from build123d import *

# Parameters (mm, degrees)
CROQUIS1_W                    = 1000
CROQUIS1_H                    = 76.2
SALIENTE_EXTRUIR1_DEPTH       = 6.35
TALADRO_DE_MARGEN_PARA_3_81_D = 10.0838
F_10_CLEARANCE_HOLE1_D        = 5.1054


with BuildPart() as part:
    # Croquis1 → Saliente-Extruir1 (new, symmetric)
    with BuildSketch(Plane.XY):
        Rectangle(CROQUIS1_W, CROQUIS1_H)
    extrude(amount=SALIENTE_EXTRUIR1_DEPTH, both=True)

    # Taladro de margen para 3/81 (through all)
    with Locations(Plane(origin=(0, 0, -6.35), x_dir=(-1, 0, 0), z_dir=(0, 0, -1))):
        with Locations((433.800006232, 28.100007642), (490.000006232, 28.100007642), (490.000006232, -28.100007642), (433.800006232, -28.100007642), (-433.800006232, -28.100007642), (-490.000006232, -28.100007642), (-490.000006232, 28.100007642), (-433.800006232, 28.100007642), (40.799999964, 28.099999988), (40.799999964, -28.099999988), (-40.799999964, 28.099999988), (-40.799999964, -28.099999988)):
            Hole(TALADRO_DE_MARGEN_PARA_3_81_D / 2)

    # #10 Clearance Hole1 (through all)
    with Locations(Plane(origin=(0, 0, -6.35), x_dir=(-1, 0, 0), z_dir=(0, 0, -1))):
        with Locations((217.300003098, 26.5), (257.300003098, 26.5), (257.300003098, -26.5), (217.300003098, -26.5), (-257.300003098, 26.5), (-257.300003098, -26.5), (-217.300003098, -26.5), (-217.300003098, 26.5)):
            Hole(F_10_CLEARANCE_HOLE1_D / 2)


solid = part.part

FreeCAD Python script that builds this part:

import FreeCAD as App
import Part
import Sketcher
Q = App.Units.Quantity

doc = App.newDocument("Part")
params = doc.addObject("Spreadsheet::Sheet", "Params")
for row, (alias, value) in enumerate([
    ("sketch1_height", "3 in"),
    ("pad1_length", "0.5 in"),
    ("sketch2_diameter", "0.397 in"),
    ("hole_diameter", "0.397 in"),
    ("sketch3_diameter", "0.201 in"),
    ("hole2_diameter", "0.201 in"),
], start=1):
    params.set(f"A{row}", alias)
    params.set(f"B{row}", "=" + value)
    params.setAlias(f"B{row}", alias)

body = doc.addObject("PartDesign::Body", "Body")

# Sketch on XY plane
sketch1 = body.newObject("Sketcher::SketchObject", "Sketch")
sketch1.AttachmentSupport = (doc.getObject("XY_Plane"), [""])
sketch1.MapMode = "FlatFace"
sketch1.addGeometry([
    Part.LineSegment(App.Vector(-500, 38.1, 0), App.Vector(-500, -38.1, 0)),
    Part.LineSegment(App.Vector(-500, -38.1, 0), App.Vector(500, -38.1, 0)),
    Part.LineSegment(App.Vector(500, -38.1, 0), App.Vector(500, 38.1, 0)),
    Part.LineSegment(App.Vector(500, 38.1, 0), App.Vector(-500, 38.1, 0)),
], False)
sketch1.addConstraint([
    Sketcher.Constraint("Coincident", 0, 2, 1, 1),
    Sketcher.Constraint("Coincident", 1, 2, 2, 1),
    Sketcher.Constraint("Coincident", 2, 2, 3, 1),
    Sketcher.Constraint("Coincident", 3, 2, 0, 1),
    Sketcher.Constraint("Vertical", 0),
    Sketcher.Constraint("Horizontal", 1),
    Sketcher.Constraint("Vertical", 2),
    Sketcher.Constraint("Horizontal", 3),
    Sketcher.Constraint("Symmetric", 0, 2, 2, 2, -1, 1),
    Sketcher.Constraint("DistanceY", 0, 2, 0, 1, Q("3 in")),
    Sketcher.Constraint("DistanceX", 1, 1, 1, 2, 1000.0),
])
sketch1.setExpression("Constraints[9]", "Params.sketch1_height")
pad1 = body.newObject("PartDesign::Pad", "Pad")
pad1.Profile = sketch1
pad1.setExpression("Length", "Params.pad1_length")
pad1.Midplane = True

# Sketch on XY plane
sketch2 = body.newObject("Sketcher::SketchObject", "Sketch001")
sketch2.AttachmentSupport = (doc.getObject("XY_Plane"), [""])
sketch2.MapMode = "FlatFace"
sketch2.AttachmentOffset = App.Placement(App.Vector(0, 0, -0.25 * 25.4), App.Rotation())
sketch2.addGeometry([
    Part.Circle(App.Vector(-433.800006, 28.100008, 0), App.Vector(0, 0, 1), 5.0419),  # 0
    Part.Circle(App.Vector(-490.000006, 28.100008, 0), App.Vector(0, 0, 1), 5.0419),  # 1
    Part.Circle(App.Vector(-490.000006, -28.100008, 0), App.Vector(0, 0, 1), 5.0419),  # 2
    Part.Circle(App.Vector(-433.800006, -28.100008, 0), App.Vector(0, 0, 1), 5.0419),  # 3
    Part.Circle(App.Vector(433.800006, -28.100008, 0), App.Vector(0, 0, 1), 5.0419),  # 4
    Part.Circle(App.Vector(490.000006, -28.100008, 0), App.Vector(0, 0, 1), 5.0419),  # 5
    Part.Circle(App.Vector(490.000006, 28.100008, 0), App.Vector(0, 0, 1), 5.0419),  # 6
    Part.Circle(App.Vector(433.800006, 28.100008, 0), App.Vector(0, 0, 1), 5.0419),  # 7
    Part.Circle(App.Vector(-40.8, 28.1, 0), App.Vector(0, 0, 1), 5.0419),  # 8
    Part.Circle(App.Vector(-40.8, -28.1, 0), App.Vector(0, 0, 1), 5.0419),  # 9
    Part.Circle(App.Vector(40.8, 28.1, 0), App.Vector(0, 0, 1), 5.0419),  # 10
    Part.Circle(App.Vector(40.8, -28.1, 0), App.Vector(0, 0, 1), 5.0419),  # 11
], False)
sketch2.addConstraint([
    Sketcher.Constraint("Equal", 0, 1),
    Sketcher.Constraint("Equal", 1, 2),
    Sketcher.Constraint("Equal", 2, 3),
    Sketcher.Constraint("Equal", 3, 4),
    Sketcher.Constraint("Equal", 4, 5),
    Sketcher.Constraint("Equal", 5, 6),
    Sketcher.Constraint("Equal", 6, 7),
    Sketcher.Constraint("Equal", 7, 8),
    Sketcher.Constraint("Equal", 8, 9),
    Sketcher.Constraint("Equal", 9, 10),
    Sketcher.Constraint("Equal", 10, 11),
    Sketcher.Constraint("Symmetric", 0, 3, 4, 3, -1, 1),
    Sketcher.Constraint("Symmetric", 1, 3, 5, 3, -1, 1),
    Sketcher.Constraint("Symmetric", 2, 3, 6, 3, -1, 1),
    Sketcher.Constraint("Symmetric", 3, 3, 7, 3, -1, 1),
    Sketcher.Constraint("Symmetric", 9, 3, 10, 3, -1, 1),
    Sketcher.Constraint("Symmetric", 8, 3, 11, 3, -1, 1),
    Sketcher.Constraint("Symmetric", 3, 3, 4, 3, -2),
    Sketcher.Constraint("Symmetric", 2, 3, 5, 3, -2),
    Sketcher.Constraint("Symmetric", 8, 3, 10, 3, -2),
    Sketcher.Constraint("Horizontal", 0, 3, 1, 3),
    Sketcher.Constraint("Diameter", 0, Q("0.397 in")),
    Sketcher.Constraint("DistanceX", 8, 3, -1, 1, 40.8),
    Sketcher.Constraint("DistanceY", -1, 1, 8, 3, 28.1),
    Sketcher.Constraint("DistanceX", 1, 3, 0, 3, 56.2),
    Sketcher.Constraint("DistanceX", 0, 3, -1, 1, 433.800006),
    Sketcher.Constraint("DistanceY", -1, 1, 0, 3, 28.100008),
])
sketch2.setExpression("Constraints[21]", "Params.sketch2_diameter")
doc.recompute()
hole = body.newObject("PartDesign::Hole", "Hole")
hole.Profile = sketch2
hole.ThreadType = "None"
hole.setExpression("Diameter", "Params.hole_diameter")
hole.DepthType = "ThroughAll"
hole.Reversed = True

# Sketch on XY plane
sketch3 = body.newObject("Sketcher::SketchObject", "Sketch002")
sketch3.AttachmentSupport = (doc.getObject("XY_Plane"), [""])
sketch3.MapMode = "FlatFace"
sketch3.AttachmentOffset = App.Placement(App.Vector(0, 0, -0.25 * 25.4), App.Rotation())
sketch3.addGeometry([
    Part.Circle(App.Vector(-217.300003, 26.5, 0), App.Vector(0, 0, 1), 2.5527),  # 0
    Part.Circle(App.Vector(-257.300003, 26.5, 0), App.Vector(0, 0, 1), 2.5527),  # 1
    Part.Circle(App.Vector(-257.300003, -26.5, 0), App.Vector(0, 0, 1), 2.5527),  # 2
    Part.Circle(App.Vector(-217.300003, -26.5, 0), App.Vector(0, 0, 1), 2.5527),  # 3
    Part.Circle(App.Vector(257.300003, 26.5, 0), App.Vector(0, 0, 1), 2.5527),  # 4
    Part.Circle(App.Vector(257.300003, -26.5, 0), App.Vector(0, 0, 1), 2.5527),  # 5
    Part.Circle(App.Vector(217.300003, -26.5, 0), App.Vector(0, 0, 1), 2.5527),  # 6
    Part.Circle(App.Vector(217.300003, 26.5, 0), App.Vector(0, 0, 1), 2.5527),  # 7
], False)
sketch3.addConstraint([
    Sketcher.Constraint("Equal", 0, 1),
    Sketcher.Constraint("Equal", 1, 2),
    Sketcher.Constraint("Equal", 2, 3),
    Sketcher.Constraint("Equal", 3, 4),
    Sketcher.Constraint("Equal", 4, 5),
    Sketcher.Constraint("Equal", 5, 6),
    Sketcher.Constraint("Equal", 6, 7),
    Sketcher.Constraint("Symmetric", 2, 3, 4, 3, -1, 1),
    Sketcher.Constraint("Symmetric", 1, 3, 5, 3, -1, 1),
    Sketcher.Constraint("Symmetric", 0, 3, 6, 3, -1, 1),
    Sketcher.Constraint("Symmetric", 3, 3, 7, 3, -1, 1),
    Sketcher.Constraint("Symmetric", 1, 3, 4, 3, -2),
    Sketcher.Constraint("Symmetric", 3, 3, 6, 3, -2),
    Sketcher.Constraint("Horizontal", 0, 3, 1, 3),
    Sketcher.Constraint("Diameter", 0, Q("0.201 in")),
    Sketcher.Constraint("DistanceY", -1, 1, 0, 3, 26.5),
    Sketcher.Constraint("DistanceX", 1, 3, 0, 3, 40.0),
    Sketcher.Constraint("DistanceX", 0, 3, -1, 1, 217.300003),
])
sketch3.setExpression("Constraints[14]", "Params.sketch3_diameter")
doc.recompute()
hole2 = body.newObject("PartDesign::Hole", "Hole001")
hole2.Profile = sketch3
hole2.ThreadType = "None"
hole2.setExpression("Diameter", "Params.hole2_diameter")
hole2.DepthType = "ThroughAll"
hole2.Reversed = True

doc.recompute()
